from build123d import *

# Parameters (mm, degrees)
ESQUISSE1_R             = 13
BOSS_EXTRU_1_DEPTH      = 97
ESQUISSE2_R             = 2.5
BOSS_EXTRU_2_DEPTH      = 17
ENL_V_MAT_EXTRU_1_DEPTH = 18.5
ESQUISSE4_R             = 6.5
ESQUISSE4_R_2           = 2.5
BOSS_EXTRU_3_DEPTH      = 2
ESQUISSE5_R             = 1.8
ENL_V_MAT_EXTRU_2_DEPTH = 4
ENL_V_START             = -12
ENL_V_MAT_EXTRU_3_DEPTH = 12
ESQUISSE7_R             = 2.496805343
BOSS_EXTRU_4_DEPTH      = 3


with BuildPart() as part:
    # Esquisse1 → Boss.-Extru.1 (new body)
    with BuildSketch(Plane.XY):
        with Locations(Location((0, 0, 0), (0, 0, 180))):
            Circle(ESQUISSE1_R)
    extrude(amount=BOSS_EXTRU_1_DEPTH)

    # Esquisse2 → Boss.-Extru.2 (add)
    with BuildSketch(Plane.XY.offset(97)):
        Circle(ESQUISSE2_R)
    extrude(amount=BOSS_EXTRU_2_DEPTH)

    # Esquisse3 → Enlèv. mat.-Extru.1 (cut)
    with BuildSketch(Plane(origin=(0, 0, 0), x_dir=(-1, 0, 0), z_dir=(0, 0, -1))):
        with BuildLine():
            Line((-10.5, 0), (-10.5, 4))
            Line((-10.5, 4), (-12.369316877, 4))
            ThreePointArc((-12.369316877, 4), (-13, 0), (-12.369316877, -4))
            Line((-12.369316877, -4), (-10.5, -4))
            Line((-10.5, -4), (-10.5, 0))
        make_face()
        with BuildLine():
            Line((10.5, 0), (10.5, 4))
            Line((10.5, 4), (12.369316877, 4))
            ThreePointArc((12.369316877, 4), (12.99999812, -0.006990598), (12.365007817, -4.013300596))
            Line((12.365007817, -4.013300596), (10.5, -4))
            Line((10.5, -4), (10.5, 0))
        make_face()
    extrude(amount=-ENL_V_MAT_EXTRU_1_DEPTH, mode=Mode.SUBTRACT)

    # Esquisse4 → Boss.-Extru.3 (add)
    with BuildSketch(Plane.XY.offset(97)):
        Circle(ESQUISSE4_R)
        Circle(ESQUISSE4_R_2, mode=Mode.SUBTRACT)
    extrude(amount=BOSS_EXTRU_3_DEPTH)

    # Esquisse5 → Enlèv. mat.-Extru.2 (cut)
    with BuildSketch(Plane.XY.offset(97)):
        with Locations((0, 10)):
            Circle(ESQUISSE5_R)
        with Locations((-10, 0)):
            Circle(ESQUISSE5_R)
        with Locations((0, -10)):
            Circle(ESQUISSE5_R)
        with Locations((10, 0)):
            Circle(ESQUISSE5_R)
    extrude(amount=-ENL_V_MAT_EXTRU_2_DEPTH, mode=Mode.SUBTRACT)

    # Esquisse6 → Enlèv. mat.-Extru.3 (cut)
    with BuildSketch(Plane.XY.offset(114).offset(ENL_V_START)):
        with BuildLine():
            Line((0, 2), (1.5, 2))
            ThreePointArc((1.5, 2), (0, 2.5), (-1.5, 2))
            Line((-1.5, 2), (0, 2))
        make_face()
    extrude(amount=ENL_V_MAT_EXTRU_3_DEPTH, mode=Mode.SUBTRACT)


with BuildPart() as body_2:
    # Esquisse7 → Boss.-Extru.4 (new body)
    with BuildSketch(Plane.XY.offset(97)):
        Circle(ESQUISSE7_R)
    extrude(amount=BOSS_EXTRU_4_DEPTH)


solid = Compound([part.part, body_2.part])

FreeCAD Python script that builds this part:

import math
import FreeCAD as App
import Part
import Sketcher
from FreeCAD import Vector
Q = App.Units.Quantity

doc = App.newDocument("Part")
params = doc.addObject("Spreadsheet::Sheet", "Params")
for row, (alias, value) in enumerate([
    ("sketch1_diameter", "26 mm"),
    ("pad1_length", "97 mm"),
    ("sketch2_diameter", "5 mm"),
    ("pad2_length", "17 mm"),
    ("sketch3_radius", "13 mm"),
    ("sketch3_height", "8 mm"),
    ("pocket1_length", "18.5 mm"),
    ("sketch4_diameter", "13 mm"),
    ("sketch4_diameter2", "5 mm"),
    ("pad3_length", "2 mm"),
    ("sketch5_diameter", "3.6 mm"),
    ("pocket2_length", "4 mm"),
    ("sketch6_radius", "2.5 mm"),
    ("sketch6_width", "3 mm"),
    ("pocket3_length", "12 mm"),
    ("pad4_length", "3 mm"),
], start=1):
    params.set(f"A{row}", alias)
    params.set(f"B{row}", "=" + value)
    params.setAlias(f"B{row}", alias)

body = doc.addObject("PartDesign::Body", "Body")

# Sketch on XY plane
sketch1 = body.newObject("Sketcher::SketchObject", "Sketch")
sketch1.AttachmentSupport = (doc.getObject("XY_Plane"), [""])
sketch1.MapMode = "FlatFace"
sketch1.addGeometry(Part.Circle(Vector(0, 0, 0), Vector(0, 0, 1), 13), False)
sketch1.addConstraint(Sketcher.Constraint("Coincident", 0, 3, -1, 1))
sketch1.addConstraint(Sketcher.Constraint("Diameter", 0, Q("26 mm")))
sketch1.setExpression("Constraints[1]", "Params.sketch1_diameter")
pad1 = body.newObject("PartDesign::Pad", "Pad")
pad1.Profile = sketch1
pad1.setExpression("Length", "Params.pad1_length")

# Sketch on XY plane
sketch2 = body.newObject("Sketcher::SketchObject", "Sketch001")
sketch2.AttachmentSupport = (doc.getObject("XY_Plane"), [""])
sketch2.MapMode = "FlatFace"
sketch2.AttachmentOffset = App.Placement(Vector(0, 0, 97), App.Rotation())
sketch2.addGeometry(Part.Circle(Vector(0, 0, 0), Vector(0, 0, 1), 2.5), False)
sketch2.addConstraint(Sketcher.Constraint("Coincident", 0, 3, -1, 1))
sketch2.addConstraint(Sketcher.Constraint("Diameter", 0, Q("5 mm")))
sketch2.setExpression("Constraints[1]", "Params.sketch2_diameter")
pad2 = body.newObject("PartDesign::Pad", "Pad001")
pad2.Profile = sketch2
pad2.setExpression("Length", "Params.pad2_length")

# Sketch on XY plane
sketch3 = body.newObject("Sketcher::SketchObject", "Sketch002")
sketch3.AttachmentSupport = (doc.getObject("XY_Plane"), [""])
sketch3.MapMode = "FlatFace"
sketch3.addGeometry(Part.LineSegment(Vector(10.5, 4, 0), Vector(12.4, 4, 0)), False)
sketch3.addGeometry(Part.ArcOfCircle(Part.Circle(Vector(0, 0, 0), Vector(0, 0, 1), 13), math.radians(-18), math.radians(18)), False)
sketch3.addGeometry(Part.LineSegment(Vector(12.4, -4, 0), Vector(10.5, -4, 0)), False)
sketch3.addGeometry(Part.LineSegment(Vector(10.5, -4, 0), Vector(10.5, 4, 0)), False)
sketch3.addGeometry(Part.LineSegment(Vector(-12.4, 4, 0), Vector(-10.5, 4, 0)), False)
sketch3.addGeometry(Part.LineSegment(Vector(-10.5, 4, 0), Vector(-10.5, -4, 0)), False)
sketch3.addGeometry(Part.LineSegment(Vector(-10.5, -4, 0), Vector(-12.4, -4, 0)), False)
sketch3.addGeometry(Part.ArcOfCircle(Part.Circle(Vector(0, 0, 0), Vector(0, 0, 1), 13), math.radians(162), math.radians(198)), False)
sketch3.addConstraint(Sketcher.Constraint("Coincident", 0, 2, 1, 2))
sketch3.addConstraint(Sketcher.Constraint("Coincident", 1, 1, 2, 1))
sketch3.addConstraint(Sketcher.Constraint("Coincident", 2, 2, 3, 1))
sketch3.addConstraint(Sketcher.Constraint("Coincident", 3, 2, 0, 1))
sketch3.addConstraint(Sketcher.Constraint("Coincident", 4, 2, 5, 1))
sketch3.addConstraint(Sketcher.Constraint("Coincident", 5, 2, 6, 1))
sketch3.addConstraint(Sketcher.Constraint("Coincident", 6, 2, 7, 2))
sketch3.addConstraint(Sketcher.Constraint("Coincident", 7, 1, 4, 1))
sketch3.addConstraint(Sketcher.Constraint("Horizontal", 0))
sketch3.addConstraint(Sketcher.Constraint("Horizontal", 2))
sketch3.addConstraint(Sketcher.Constraint("Vertical", 3))
sketch3.addConstraint(Sketcher.Constraint("Horizontal", 4))
sketch3.addConstraint(Sketcher.Constraint("Vertical", 5))
sketch3.addConstraint(Sketcher.Constraint("Coincident", 1, 3, -1, 1))
sketch3.addConstraint(Sketcher.Constraint("Coincident", 7, 3, -1, 1))
sketch3.addConstraint(Sketcher.Constraint("Equal", 1, 7))
sketch3.addConstraint(Sketcher.Constraint("Symmetric", 2, 2, 4, 2, -1, 1))
sketch3.addConstraint(Sketcher.Constraint("Horizontal", 3, 2, 4, 2))
sketch3.addConstraint(Sketcher.Constraint("Horizontal", 2, 2, 5, 2))
sketch3.addConstraint(Sketcher.Constraint("Radius", 1, Q("13 mm")))
sketch3.addConstraint(Sketcher.Constraint("DistanceY", 3, 1, 3, 2, Q("8 mm")))
sketch3.addConstraint(Sketcher.Constraint("DistanceX", 4, 2, 3, 2, Q("21 mm")))
sketch3.addConstraint(Sketcher.Constraint("DistanceY", 6, 2, -1, 1, Q("4.013301 mm")))
sketch3.setExpression("Constraints[19]", "Params.sketch3_radius")
sketch3.setExpression("Constraints[20]", "Params.sketch3_height")
pocket1 = body.newObject("PartDesign::Pocket", "Pocket")
pocket1.Profile = sketch3
pocket1.setExpression("Length", "Params.pocket1_length")
pocket1.Reversed = True

# Sketch on XY plane
sketch4 = body.newObject("Sketcher::SketchObject", "Sketch003")
sketch4.AttachmentSupport = (doc.getObject("XY_Plane"), [""])
sketch4.MapMode = "FlatFace"
sketch4.AttachmentOffset = App.Placement(Vector(0, 0, 97), App.Rotation())
sketch4.addGeometry(Part.Circle(Vector(0, 0, 0), Vector(0, 0, 1), 6.5), False)
sketch4.addGeometry(Part.Circle(Vector(0, 0, 0), Vector(0, 0, 1), 2.5), False)
sketch4.addConstraint(Sketcher.Constraint("Coincident", 0, 3, -1, 1))
sketch4.addConstraint(Sketcher.Constraint("Coincident", 1, 3, -1, 1))
sketch4.addConstraint(Sketcher.Constraint("Diameter", 0, Q("13 mm")))
sketch4.addConstraint(Sketcher.Constraint("Diameter", 1, Q("5 mm")))
sketch4.setExpression("Constraints[2]", "Params.sketch4_diameter")
sketch4.setExpression("Constraints[3]", "Params.sketch4_diameter2")
pad3 = body.newObject("PartDesign::Pad", "Pad002")
pad3.Profile = sketch4
pad3.setExpression("Length", "Params.pad3_length")

# Sketch on XY plane
sketch5 = body.newObject("Sketcher::SketchObject", "Sketch004")
sketch5.AttachmentSupport = (doc.getObject("XY_Plane"), [""])
sketch5.MapMode = "FlatFace"
sketch5.AttachmentOffset = App.Placement(Vector(0, 0, 97), App.Rotation())
sketch5.addGeometry(Part.Circle(Vector(0, 10, 0), Vector(0, 0, 1), 1.8), False)
sketch5.addGeometry(Part.Circle(Vector(-10, 0, 0), Vector(0, 0, 1), 1.8), False)
sketch5.addGeometry(Part.Circle(Vector(0, -10, 0), Vector(0, 0, 1), 1.8), False)
sketch5.addGeometry(Part.Circle(Vector(10, 0, 0), Vector(0, 0, 1), 1.8), False)
sketch5.addConstraint(Sketcher.Constraint("Equal", 0, 1))
sketch5.addConstraint(Sketcher.Constraint("Equal", 1, 2))
sketch5.addConstraint(Sketcher.Constraint("Equal", 2, 3))
sketch5.addConstraint(Sketcher.Constraint("Symmetric", 0, 3, 2, 3, -1, 1))
sketch5.addConstraint(Sketcher.Constraint("Symmetric", 1, 3, 3, 3, -1, 1))
sketch5.addConstraint(Sketcher.Constraint("PointOnObject", 0, 3, -2))
sketch5.addConstraint(Sketcher.Constraint("PointOnObject", 1, 3, -1))
sketch5.addConstraint(Sketcher.Constraint("Diameter", 0, Q("3.6 mm")))
sketch5.addConstraint(Sketcher.Constraint("DistanceY", -1, 1, 0, 3, Q("10 mm")))
sketch5.addConstraint(Sketcher.Constraint("DistanceX", 1, 3, -1, 1, Q("10 mm")))
sketch5.setExpression("Constraints[7]", "Params.sketch5_diameter")
pocket2 = body.newObject("PartDesign::Pocket", "Pocket001")
pocket2.Profile = sketch5
pocket2.setExpression("Length", "Params.pocket2_length")

# Sketch on XY plane
sketch6 = body.newObject("Sketcher::SketchObject", "Sketch005")
sketch6.AttachmentSupport = (doc.getObject("XY_Plane"), [""])
sketch6.MapMode = "FlatFace"
sketch6.AttachmentOffset = App.Placement(Vector(0, 0, 102), App.Rotation())
sketch6.addGeometry(Part.ArcOfCircle(Part.Circle(Vector(0, 0, 0), Vector(0, 0, 1), 2.5), math.radians(53), math.radians(127)), False)
sketch6.addGeometry(Part.LineSegment(Vector(-1.5, 2, 0), Vector(1.5, 2, 0)), False)
sketch6.addConstraint(Sketcher.Constraint("Coincident", 0, 1, 1, 2))
sketch6.addConstraint(Sketcher.Constraint("Coincident", 1, 1, 0, 2))
sketch6.addConstraint(Sketcher.Constraint("Horizontal", 1))
sketch6.addConstraint(Sketcher.Constraint("Coincident", 0, 3, -1, 1))
sketch6.addConstraint(Sketcher.Constraint("Radius", 0, Q("2.5 mm")))
sketch6.addConstraint(Sketcher.Constraint("DistanceX", 1, 1, 1, 2, Q("3 mm")))
sketch6.setExpression("Constraints[4]", "Params.sketch6_radius")
sketch6.setExpression("Constraints[5]", "Params.sketch6_width")
pocket3 = body.newObject("PartDesign::Pocket", "Pocket002")
pocket3.Profile = sketch6
pocket3.setExpression("Length", "Params.pocket3_length")
pocket3.Reversed = True
body2 = doc.addObject("PartDesign::Body", "Body001")

# Sketch on XY plane
sketch7 = body2.newObject("Sketcher::SketchObject", "Sketch006")
sketch7.AttachmentSupport = (doc.getObject("XY_Plane001"), [""])
sketch7.MapMode = "FlatFace"
sketch7.AttachmentOffset = App.Placement(Vector(0, 0, 97), App.Rotation())
sketch7.addGeometry(Part.Circle(Vector(0, 0, 0), Vector(0, 0, 1), 2.5), False)
sketch7.addConstraint(Sketcher.Constraint("Coincident", 0, 3, -1, 1))
sketch7.addConstraint(Sketcher.Constraint("Diameter", 0, Q("4.993611 mm")))
pad4 = body2.newObject("PartDesign::Pad", "Pad003")
pad4.Profile = sketch7
pad4.setExpression("Length", "Params.pad4_length")

doc.recompute()
